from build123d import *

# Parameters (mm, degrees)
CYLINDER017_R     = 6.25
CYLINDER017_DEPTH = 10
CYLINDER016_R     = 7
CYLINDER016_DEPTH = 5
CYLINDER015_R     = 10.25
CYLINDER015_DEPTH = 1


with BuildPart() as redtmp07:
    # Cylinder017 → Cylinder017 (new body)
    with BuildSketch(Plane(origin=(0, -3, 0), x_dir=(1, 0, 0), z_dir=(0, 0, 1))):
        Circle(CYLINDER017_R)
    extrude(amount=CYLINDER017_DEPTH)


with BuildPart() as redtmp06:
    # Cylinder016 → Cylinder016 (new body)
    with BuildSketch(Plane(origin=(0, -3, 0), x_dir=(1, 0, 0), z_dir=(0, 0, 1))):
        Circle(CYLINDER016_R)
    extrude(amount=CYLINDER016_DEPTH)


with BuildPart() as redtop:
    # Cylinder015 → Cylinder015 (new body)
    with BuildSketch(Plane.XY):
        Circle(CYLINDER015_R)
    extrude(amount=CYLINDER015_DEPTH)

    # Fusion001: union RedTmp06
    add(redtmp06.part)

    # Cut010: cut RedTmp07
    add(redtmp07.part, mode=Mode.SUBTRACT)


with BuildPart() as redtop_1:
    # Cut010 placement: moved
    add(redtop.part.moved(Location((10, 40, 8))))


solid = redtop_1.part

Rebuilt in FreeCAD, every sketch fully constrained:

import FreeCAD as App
import Part
import Sketcher

V = App.Vector
Q = App.Units.Quantity

doc = App.newDocument("Part")
params = doc.addObject("Spreadsheet::Sheet", "Params")
for row, (alias, value) in enumerate([
    ("sketch1_diameter", "12.5 mm"),
    ("pad1_length", "10 mm"),
    ("sketch2_diameter", "14 mm"),
    ("pad2_length", "5 mm"),
    ("sketch3_diameter", "20.5 mm"),
    ("pad3_length", "1 mm"),
], start=1):
    params.set(f"A{row}", alias)
    params.set(f"B{row}", "=" + value)
    params.setAlias(f"B{row}", alias)

body = doc.addObject("PartDesign::Body", "Body")

sketch1 = doc.addObject("Sketcher::SketchObject", "Sketch")
body.addObject(sketch1)
sketch1.AttachmentSupport = (doc.XY_Plane, [""])
sketch1.MapMode = "FlatFace"
sketch1.addGeometry(Part.Circle(V(0, -3, 0), V(0, 0, 1), 6), False)
sketch1.addConstraint(Sketcher.Constraint("PointOnObject", 0, 3, -2))
sketch1.addConstraint(Sketcher.Constraint("Diameter", 0, Q("12.5 mm")))
sketch1.addConstraint(Sketcher.Constraint("DistanceY", 0, 3, -1, 1, Q("3 mm")))
sketch1.setExpression("Constraints[1]", "Params.sketch1_diameter")
pad1 = doc.addObject("PartDesign::Pad", "Pad")
body.addObject(pad1)
pad1.Profile = sketch1
pad1.setExpression("Length", "Params.pad1_length")
body2 = doc.addObject("PartDesign::Body", "Body001")

sketch2 = doc.addObject("Sketcher::SketchObject", "Sketch001")
body2.addObject(sketch2)
sketch2.AttachmentSupport = (doc.getObject("XY_Plane001"), [""])
sketch2.MapMode = "FlatFace"
sketch2.addGeometry(Part.Circle(V(0, -3, 0), V(0, 0, 1), 7), False)
sketch2.addConstraint(Sketcher.Constraint("PointOnObject", 0, 3, -2))
sketch2.addConstraint(Sketcher.Constraint("Diameter", 0, Q("14 mm")))
sketch2.addConstraint(Sketcher.Constraint("DistanceY", 0, 3, -1, 1, Q("3 mm")))
sketch2.setExpression("Constraints[1]", "Params.sketch2_diameter")
pad2 = doc.addObject("PartDesign::Pad", "Pad001")
body2.addObject(pad2)
pad2.Profile = sketch2
pad2.setExpression("Length", "Params.pad2_length")
body3 = doc.addObject("PartDesign::Body", "Body002")

sketch3 = doc.addObject("Sketcher::SketchObject", "Sketch002")
body3.addObject(sketch3)
sketch3.AttachmentSupport = (doc.getObject("XY_Plane002"), [""])
sketch3.MapMode = "FlatFace"
sketch3.addGeometry(Part.Circle(V(0, 0, 0), V(0, 0, 1), 10), False)
sketch3.addConstraint(Sketcher.Constraint("Coincident", 0, 3, -1, 1))
sketch3.addConstraint(Sketcher.Constraint("Diameter", 0, Q("20.5 mm")))
sketch3.setExpression("Constraints[1]", "Params.sketch3_diameter")
pad3 = doc.addObject("PartDesign::Pad", "Pad002")
body3.addObject(pad3)
pad3.Profile = sketch3
pad3.setExpression("Length", "Params.pad3_length")
doc.recompute()

boolean = doc.addObject("PartDesign::Boolean", "Boolean")
body3.addObject(boolean)
boolean.Type = "Fuse"
boolean.addObjects([body2])
doc.recompute()

boolean2 = doc.addObject("PartDesign::Boolean", "Boolean001")
body3.addObject(boolean2)
boolean2.Type = "Cut"
boolean2.addObjects([body])
body4 = doc.addObject("PartDesign::Body", "Body003")
doc.recompute()

body3.Placement = App.Placement(V(10, 40, 8), App.Rotation(V(0, 0, 1), 0))
boolean3 = doc.addObject("PartDesign::Boolean", "Boolean002")
body4.addObject(boolean3)
boolean3.Type = "Fuse"
boolean3.addObjects([body3])

doc.recompute()
